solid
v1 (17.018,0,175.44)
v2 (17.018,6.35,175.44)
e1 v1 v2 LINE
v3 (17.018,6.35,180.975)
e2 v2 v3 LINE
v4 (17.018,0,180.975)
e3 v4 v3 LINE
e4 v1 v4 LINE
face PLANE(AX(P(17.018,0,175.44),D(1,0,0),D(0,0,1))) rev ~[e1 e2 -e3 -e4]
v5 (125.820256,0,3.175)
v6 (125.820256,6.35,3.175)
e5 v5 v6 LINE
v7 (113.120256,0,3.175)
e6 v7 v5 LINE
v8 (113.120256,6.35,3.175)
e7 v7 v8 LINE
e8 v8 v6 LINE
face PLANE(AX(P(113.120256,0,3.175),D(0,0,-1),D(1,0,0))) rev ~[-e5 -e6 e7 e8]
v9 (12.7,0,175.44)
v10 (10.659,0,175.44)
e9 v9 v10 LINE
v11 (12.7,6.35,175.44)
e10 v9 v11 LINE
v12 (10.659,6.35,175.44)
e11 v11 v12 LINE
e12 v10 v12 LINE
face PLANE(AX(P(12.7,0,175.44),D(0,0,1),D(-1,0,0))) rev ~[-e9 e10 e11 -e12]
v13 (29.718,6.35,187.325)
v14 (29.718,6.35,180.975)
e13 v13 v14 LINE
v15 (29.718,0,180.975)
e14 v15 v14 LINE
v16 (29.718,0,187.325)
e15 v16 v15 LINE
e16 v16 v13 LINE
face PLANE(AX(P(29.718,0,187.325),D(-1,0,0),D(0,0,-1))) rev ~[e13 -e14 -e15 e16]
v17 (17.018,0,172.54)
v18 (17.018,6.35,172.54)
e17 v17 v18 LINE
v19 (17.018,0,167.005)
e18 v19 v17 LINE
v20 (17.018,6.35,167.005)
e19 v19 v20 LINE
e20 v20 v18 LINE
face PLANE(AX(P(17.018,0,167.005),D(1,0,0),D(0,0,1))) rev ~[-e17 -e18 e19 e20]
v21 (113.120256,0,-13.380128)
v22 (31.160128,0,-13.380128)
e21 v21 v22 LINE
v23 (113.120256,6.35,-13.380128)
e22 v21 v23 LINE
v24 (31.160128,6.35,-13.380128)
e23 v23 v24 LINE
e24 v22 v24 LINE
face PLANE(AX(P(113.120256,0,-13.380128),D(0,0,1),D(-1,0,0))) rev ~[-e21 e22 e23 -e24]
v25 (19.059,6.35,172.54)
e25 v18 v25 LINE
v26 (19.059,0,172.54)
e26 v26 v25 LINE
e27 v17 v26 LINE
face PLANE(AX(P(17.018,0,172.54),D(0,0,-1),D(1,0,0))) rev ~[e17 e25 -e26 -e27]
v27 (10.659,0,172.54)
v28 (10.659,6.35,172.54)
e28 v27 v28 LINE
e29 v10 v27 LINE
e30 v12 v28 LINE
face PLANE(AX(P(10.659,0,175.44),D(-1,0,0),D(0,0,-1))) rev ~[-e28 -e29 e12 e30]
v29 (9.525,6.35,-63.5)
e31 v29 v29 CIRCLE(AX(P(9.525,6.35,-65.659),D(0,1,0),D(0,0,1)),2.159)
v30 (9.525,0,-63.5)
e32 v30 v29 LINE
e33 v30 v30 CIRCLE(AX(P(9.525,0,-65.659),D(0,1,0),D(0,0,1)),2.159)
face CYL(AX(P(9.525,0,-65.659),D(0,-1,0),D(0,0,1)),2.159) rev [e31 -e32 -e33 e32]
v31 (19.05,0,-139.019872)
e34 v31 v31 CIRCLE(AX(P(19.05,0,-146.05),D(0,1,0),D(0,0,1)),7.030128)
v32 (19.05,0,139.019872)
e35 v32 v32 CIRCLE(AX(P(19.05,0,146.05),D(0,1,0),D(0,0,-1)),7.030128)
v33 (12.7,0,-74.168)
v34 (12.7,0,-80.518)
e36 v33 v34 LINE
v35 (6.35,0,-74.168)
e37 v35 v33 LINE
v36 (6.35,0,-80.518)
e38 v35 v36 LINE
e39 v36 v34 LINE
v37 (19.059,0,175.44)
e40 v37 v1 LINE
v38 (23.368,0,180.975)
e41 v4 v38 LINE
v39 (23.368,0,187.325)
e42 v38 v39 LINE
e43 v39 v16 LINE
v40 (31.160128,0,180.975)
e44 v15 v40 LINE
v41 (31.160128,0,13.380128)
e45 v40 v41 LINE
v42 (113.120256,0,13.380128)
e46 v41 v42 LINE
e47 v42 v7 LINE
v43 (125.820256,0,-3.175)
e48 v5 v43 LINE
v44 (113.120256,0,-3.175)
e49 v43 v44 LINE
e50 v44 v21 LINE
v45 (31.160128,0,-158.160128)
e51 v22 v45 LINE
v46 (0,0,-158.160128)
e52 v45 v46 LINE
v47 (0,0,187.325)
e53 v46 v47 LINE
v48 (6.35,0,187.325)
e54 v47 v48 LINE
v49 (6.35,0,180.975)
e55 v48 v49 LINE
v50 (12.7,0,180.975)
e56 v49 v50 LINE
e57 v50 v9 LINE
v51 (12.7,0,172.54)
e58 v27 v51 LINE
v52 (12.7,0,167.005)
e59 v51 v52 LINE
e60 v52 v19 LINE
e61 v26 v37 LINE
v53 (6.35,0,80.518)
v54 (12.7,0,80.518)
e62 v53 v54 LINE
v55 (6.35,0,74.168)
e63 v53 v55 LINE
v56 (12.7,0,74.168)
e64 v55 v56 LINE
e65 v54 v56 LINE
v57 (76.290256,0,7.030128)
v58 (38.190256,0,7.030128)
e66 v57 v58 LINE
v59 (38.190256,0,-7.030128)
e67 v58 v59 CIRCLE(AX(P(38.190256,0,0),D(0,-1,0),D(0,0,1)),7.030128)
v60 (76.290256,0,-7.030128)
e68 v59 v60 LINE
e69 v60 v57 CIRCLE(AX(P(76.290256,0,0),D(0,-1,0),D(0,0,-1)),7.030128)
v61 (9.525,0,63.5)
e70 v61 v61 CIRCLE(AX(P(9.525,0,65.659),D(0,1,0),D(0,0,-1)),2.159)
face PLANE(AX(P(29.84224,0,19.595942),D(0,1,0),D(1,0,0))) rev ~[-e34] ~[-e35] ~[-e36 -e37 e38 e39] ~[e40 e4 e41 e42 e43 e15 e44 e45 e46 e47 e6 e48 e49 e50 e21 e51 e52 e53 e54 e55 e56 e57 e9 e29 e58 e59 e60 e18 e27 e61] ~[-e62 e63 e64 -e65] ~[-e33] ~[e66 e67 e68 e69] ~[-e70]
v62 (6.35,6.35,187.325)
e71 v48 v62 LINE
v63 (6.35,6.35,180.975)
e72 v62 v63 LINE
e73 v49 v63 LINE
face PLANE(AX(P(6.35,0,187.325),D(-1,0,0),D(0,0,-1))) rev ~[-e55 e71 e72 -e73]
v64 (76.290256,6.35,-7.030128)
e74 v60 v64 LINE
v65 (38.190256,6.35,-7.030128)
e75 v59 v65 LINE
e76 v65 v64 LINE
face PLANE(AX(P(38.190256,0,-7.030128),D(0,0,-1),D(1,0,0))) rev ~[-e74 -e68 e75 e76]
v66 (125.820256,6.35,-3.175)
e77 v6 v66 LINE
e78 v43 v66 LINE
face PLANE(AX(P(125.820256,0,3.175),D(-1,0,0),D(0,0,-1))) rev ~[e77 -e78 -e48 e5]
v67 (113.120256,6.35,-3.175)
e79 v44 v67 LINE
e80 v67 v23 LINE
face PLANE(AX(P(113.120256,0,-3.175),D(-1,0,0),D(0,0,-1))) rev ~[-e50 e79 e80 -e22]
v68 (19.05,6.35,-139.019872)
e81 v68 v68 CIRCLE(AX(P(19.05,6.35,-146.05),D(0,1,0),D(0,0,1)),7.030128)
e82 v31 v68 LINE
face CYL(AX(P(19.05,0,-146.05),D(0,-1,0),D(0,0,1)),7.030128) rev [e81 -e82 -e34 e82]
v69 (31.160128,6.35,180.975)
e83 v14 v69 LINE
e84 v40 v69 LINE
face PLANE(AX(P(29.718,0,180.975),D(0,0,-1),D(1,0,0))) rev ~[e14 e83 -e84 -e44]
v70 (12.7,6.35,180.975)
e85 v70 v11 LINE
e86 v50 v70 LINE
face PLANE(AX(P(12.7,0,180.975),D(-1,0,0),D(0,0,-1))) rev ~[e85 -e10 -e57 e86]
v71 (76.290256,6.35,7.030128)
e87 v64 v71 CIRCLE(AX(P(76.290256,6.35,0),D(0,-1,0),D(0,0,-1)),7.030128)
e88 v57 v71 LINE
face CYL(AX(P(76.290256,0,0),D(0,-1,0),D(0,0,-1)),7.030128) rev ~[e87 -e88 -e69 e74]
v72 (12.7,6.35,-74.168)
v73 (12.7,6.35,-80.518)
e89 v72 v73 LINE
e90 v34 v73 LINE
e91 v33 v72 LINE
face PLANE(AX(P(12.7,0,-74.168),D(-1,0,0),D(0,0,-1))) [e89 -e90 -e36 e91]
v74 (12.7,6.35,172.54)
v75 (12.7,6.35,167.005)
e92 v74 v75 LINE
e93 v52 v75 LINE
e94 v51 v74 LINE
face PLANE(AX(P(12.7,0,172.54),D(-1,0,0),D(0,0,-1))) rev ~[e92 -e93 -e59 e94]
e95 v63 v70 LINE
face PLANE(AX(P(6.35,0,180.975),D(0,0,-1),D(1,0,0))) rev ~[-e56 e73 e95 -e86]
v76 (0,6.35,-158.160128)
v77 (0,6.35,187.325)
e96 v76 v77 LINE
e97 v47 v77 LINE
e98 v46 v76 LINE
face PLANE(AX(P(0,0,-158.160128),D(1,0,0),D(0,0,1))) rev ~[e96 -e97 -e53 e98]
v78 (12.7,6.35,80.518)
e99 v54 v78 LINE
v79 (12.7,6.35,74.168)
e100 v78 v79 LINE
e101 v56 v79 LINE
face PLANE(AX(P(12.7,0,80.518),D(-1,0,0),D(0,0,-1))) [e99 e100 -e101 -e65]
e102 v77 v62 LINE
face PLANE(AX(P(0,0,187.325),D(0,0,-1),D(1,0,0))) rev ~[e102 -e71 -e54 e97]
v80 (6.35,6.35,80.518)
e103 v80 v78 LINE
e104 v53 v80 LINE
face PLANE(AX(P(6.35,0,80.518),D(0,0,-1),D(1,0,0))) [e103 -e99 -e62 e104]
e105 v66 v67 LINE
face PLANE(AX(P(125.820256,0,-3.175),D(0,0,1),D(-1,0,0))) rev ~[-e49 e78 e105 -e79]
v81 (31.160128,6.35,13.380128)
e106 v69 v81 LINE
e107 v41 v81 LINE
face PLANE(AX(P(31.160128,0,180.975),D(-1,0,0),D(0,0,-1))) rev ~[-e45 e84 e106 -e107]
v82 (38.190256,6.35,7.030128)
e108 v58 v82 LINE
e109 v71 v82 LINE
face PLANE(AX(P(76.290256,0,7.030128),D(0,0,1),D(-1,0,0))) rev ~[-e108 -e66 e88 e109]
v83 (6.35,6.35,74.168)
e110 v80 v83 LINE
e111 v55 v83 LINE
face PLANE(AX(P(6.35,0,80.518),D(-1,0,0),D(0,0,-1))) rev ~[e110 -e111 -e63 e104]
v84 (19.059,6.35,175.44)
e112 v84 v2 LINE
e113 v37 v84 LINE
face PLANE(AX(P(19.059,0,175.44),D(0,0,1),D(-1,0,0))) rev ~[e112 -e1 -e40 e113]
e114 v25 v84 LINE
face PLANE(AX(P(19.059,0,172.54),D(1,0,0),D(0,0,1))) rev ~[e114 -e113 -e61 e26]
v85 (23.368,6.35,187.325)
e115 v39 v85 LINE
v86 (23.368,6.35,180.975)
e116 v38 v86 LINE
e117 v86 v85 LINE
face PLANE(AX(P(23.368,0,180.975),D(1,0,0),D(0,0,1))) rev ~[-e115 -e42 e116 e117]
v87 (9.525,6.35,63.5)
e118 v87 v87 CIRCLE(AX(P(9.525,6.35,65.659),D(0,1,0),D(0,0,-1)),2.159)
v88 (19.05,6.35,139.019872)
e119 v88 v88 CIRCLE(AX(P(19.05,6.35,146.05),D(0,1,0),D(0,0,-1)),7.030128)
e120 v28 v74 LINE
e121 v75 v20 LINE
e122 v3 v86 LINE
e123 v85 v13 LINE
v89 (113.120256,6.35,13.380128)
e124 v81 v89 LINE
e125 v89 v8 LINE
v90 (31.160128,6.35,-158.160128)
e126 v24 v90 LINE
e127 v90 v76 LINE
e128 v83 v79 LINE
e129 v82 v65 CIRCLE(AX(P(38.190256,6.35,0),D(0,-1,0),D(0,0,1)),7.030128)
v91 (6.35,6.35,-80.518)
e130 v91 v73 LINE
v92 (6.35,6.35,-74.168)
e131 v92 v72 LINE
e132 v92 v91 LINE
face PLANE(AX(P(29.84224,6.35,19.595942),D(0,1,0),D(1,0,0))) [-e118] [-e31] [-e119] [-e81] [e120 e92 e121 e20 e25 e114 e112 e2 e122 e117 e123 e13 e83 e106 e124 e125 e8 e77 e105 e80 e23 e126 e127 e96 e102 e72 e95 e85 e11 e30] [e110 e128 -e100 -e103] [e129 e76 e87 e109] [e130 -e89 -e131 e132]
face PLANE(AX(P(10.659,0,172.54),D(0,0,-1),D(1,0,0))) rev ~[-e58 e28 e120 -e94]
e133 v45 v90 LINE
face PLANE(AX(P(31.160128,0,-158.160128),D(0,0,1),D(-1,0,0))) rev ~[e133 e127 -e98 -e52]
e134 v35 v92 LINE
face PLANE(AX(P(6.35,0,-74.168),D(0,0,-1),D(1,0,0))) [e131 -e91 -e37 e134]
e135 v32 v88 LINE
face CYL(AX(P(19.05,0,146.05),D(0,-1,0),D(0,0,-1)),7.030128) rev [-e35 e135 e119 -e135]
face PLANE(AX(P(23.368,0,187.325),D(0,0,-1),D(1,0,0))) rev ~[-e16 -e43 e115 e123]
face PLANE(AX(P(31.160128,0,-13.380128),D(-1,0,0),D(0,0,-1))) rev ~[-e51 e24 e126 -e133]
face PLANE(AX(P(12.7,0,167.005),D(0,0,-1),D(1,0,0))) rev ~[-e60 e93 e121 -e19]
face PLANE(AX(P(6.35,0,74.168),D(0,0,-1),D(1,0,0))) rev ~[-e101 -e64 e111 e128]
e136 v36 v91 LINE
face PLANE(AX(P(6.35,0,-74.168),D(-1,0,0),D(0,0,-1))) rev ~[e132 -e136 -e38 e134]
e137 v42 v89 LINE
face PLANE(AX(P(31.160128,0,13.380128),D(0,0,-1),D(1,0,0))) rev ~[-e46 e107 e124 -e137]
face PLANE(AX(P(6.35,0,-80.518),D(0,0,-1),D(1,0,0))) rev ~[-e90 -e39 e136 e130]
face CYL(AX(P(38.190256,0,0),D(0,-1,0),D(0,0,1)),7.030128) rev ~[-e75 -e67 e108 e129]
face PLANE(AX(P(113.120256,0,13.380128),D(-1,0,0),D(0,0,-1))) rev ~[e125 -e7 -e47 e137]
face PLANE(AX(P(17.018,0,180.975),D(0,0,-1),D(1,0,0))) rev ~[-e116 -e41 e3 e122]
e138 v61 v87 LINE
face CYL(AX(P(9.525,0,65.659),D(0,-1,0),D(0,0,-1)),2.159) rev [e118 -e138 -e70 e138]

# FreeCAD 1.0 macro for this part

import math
import FreeCAD as App
import Part
import Sketcher

V = App.Vector
Q = App.Units.Quantity


def add_polygon(sketch, points):
    """Adds a closed chain of lines whose ends are joined by coincident constraints."""
    first, n = sketch.GeometryCount, len(points)
    for a, b in zip(points, points[1:] + points[:1]):
        sketch.addGeometry(Part.LineSegment(App.Vector(*a, 0), App.Vector(*b, 0)), False)
    for i in range(n):
        sketch.addConstraint(Sketcher.Constraint("Coincident", first + i, 2, first + (i + 1) % n, 1))

doc = App.newDocument("Part")
body = doc.addObject("PartDesign::Body", "Body")

# Sketch on XZ plane
sketch1 = body.newObject("Sketcher::SketchObject", "Sketch")
sketch1.AttachmentSupport = (doc.getObject("XZ_Plane"), [""])
sketch1.MapMode = "FlatFace"
add_polygon(sketch1, [(31.2, 181), (31.2, 13.4), (113.1, 13.4), (113.1, 3.2), (125.8, 3.2), (125.8, -3.2), (113.1, -3.2), (113.1, -13.4), (31.2, -13.4), (31.2, -158.2), (0, -158.2), (0, 187.3), (6.3, 187.3), (6.3, 181), (12.7, 181), (12.7, 175.4), (10.7, 175.4), (10.7, 172.5), (12.7, 172.5), (12.7, 167), (17, 167), (17, 172.5), (19.1, 172.5), (19.1, 175.4), (17, 175.4), (17, 181), (23.4, 181), (23.4, 187.3), (29.7, 187.3), (29.7, 181)])  # lines 0-29
sketch1.addGeometry(Part.Circle(V(19.1, 146.1, 0), V(0, 0, 1), 7), False)  # 30
add_polygon(sketch1, [(12.7, 80.5), (6.3, 80.5), (6.3, 74.2), (12.7, 74.2)])  # lines 31-34
sketch1.addGeometry(Part.Circle(V(9.5, 65.7, 0), V(0, 0, 1), 2.2), False)  # 35
sketch1.addGeometry(Part.Circle(V(9.5, -65.7, 0), V(0, 0, 1), 2.2), False)  # 36
add_polygon(sketch1, [(12.7, -74.2), (6.3, -74.2), (6.3, -80.5), (12.7, -80.5)])  # lines 37-40
sketch1.addGeometry(Part.Circle(V(19.1, -146.1, 0), V(0, 0, 1), 7), False)  # 41
sketch1.addGeometry(Part.ArcOfCircle(Part.Circle(V(38.2, 0, 0), V(0, 0, 1), 7), math.radians(90), math.radians(270)), False)  # 42
sketch1.addGeometry(Part.LineSegment(V(38.2, -7, 0), V(76.3, -7, 0)), False)  # 43
sketch1.addGeometry(Part.ArcOfCircle(Part.Circle(V(76.3, 0, 0), V(0, 0, 1), 7), math.radians(-90), math.radians(90)), False)  # 44
sketch1.addGeometry(Part.LineSegment(V(76.3, 7, 0), V(38.2, 7, 0)), False)  # 45
sketch1.addConstraint([
    Sketcher.Constraint("Tangent", 42, 2, 43, 1),
    Sketcher.Constraint("Tangent", 43, 2, 44, 1),
    Sketcher.Constraint("Tangent", 44, 2, 45, 1),
    Sketcher.Constraint("Tangent", 45, 2, 42, 1),
    Sketcher.Constraint("Vertical", 0),
    Sketcher.Constraint("Horizontal", 1),
    Sketcher.Constraint("Vertical", 2),
    Sketcher.Constraint("Horizontal", 3),
    Sketcher.Constraint("Vertical", 4),
    Sketcher.Constraint("Horizontal", 5),
    Sketcher.Constraint("Vertical", 6),
    Sketcher.Constraint("Horizontal", 7),
    Sketcher.Constraint("Vertical", 8),
    Sketcher.Constraint("Horizontal", 9),
    Sketcher.Constraint("Vertical", 10),
    Sketcher.Constraint("Horizontal", 11),
    Sketcher.Constraint("Vertical", 12),
    Sketcher.Constraint("Horizontal", 13),
    Sketcher.Constraint("Vertical", 14),
    Sketcher.Constraint("Horizontal", 15),
    Sketcher.Constraint("Vertical", 16),
    Sketcher.Constraint("Horizontal", 17),
    Sketcher.Constraint("Vertical", 18),
    Sketcher.Constraint("Horizontal", 19),
    Sketcher.Constraint("Vertical", 20),
    Sketcher.Constraint("Horizontal", 21),
    Sketcher.Constraint("Vertical", 22),
    Sketcher.Constraint("Horizontal", 23),
    Sketcher.Constraint("Vertical", 24),
    Sketcher.Constraint("Horizontal", 25),
    Sketcher.Constraint("Vertical", 26),
    Sketcher.Constraint("Horizontal", 27),
    Sketcher.Constraint("Vertical", 28),
    Sketcher.Constraint("Horizontal", 29),
    Sketcher.Constraint("Horizontal", 31),
    Sketcher.Constraint("Vertical", 32),
    Sketcher.Constraint("Horizontal", 33),
    Sketcher.Constraint("Vertical", 34),
    Sketcher.Constraint("Horizontal", 37),
    Sketcher.Constraint("Vertical", 38),
    Sketcher.Constraint("Horizontal", 39),
    Sketcher.Constraint("Vertical", 40),
    Sketcher.Constraint("Horizontal", 43),
    Sketcher.Constraint("Horizontal", 45),
    Sketcher.Constraint("Equal", 35, 36),
    Sketcher.Constraint("Equal", 30, 41),
    Sketcher.Constraint("Equal", 41, 42),
    Sketcher.Constraint("Symmetric", 35, 3, 36, 3, -1),
    Sketcher.Constraint("Symmetric", 30, 3, 41, 3, -1),
    Sketcher.Constraint("Symmetric", 2, 2, 5, 2, -1),
    Sketcher.Constraint("Symmetric", 0, 2, 7, 2, -1),
    Sketcher.Constraint("Symmetric", 32, 2, 37, 2, -1),
    Sketcher.Constraint("Symmetric", 34, 2, 39, 2, -1),
    Sketcher.Constraint("PointOnObject", 42, 3, -1),
    Sketcher.Constraint("PointOnObject", 9, 2, -2),
    Sketcher.Constraint("Horizontal", 17, 2, 20, 2),
    Sketcher.Constraint("Horizontal", 15, 2, 22, 2),
    Sketcher.Constraint("Horizontal", 13, 2, 24, 2),
    Sketcher.Constraint("Horizontal", 11, 2, 26, 2),
    Sketcher.Constraint("Horizontal", 25, 2, 28, 2),
    Sketcher.Constraint("Vertical", 14, 2, 17, 2),
    Sketcher.Constraint("Vertical", 20, 2, 23, 2),
    Sketcher.Constraint("Vertical", 12, 2, 31, 2),
    Sketcher.Constraint("Vertical", 18, 2, 33, 2),
    Sketcher.Constraint("Equal", 11, 13),
    Sketcher.Constraint("Equal", 17, 21),
    Sketcher.Constraint("Equal", 13, 25),
    Sketcher.Constraint("Equal", 25, 27),
    Sketcher.Constraint("Equal", 39, 4),
    Sketcher.Constraint("Equal", 4, 12),
    Sketcher.Constraint("Equal", 14, 18),
    Sketcher.Constraint("Equal", 28, 32),
    Sketcher.Constraint("Diameter", 35, Q("0.17 in")),
    Sketcher.Constraint("DistanceX", 3, 1, 3, 2, Q("0.5 in")),
    Sketcher.Constraint("DistanceX", 43, 1, 43, 2, Q("1.5 in")),
    Sketcher.Constraint("DistanceY", 8, 2, 8, 1, Q("5.7 in")),
    Sketcher.Constraint("DistanceX", 11, 1, 11, 2, Q("0.25 in")),
    Sketcher.Constraint("DistanceX", 19, 1, 19, 2, Q("0.17 in")),
    Sketcher.Constraint("DistanceY", 41, 3, 30, 3, Q("11.5 in")),
    Sketcher.Constraint("DistanceX", 11, 2, 30, 3, Q("0.5 in")),
    Sketcher.Constraint("DistanceY", -1, 1, 31, 2, Q("3.17 in")),
    Sketcher.Constraint("DistanceY", 36, 3, 35, 3, Q("5.17 in")),
    Sketcher.Constraint("DistanceX", 44, 3, 1, 2, Q("1.45 in")),
    Sketcher.Constraint("DistanceY", 35, 3, 10, 2, Q("4.79 in")),
    Sketcher.Constraint("DistanceY", 18, 2, 13, 2, Q("0.55 in")),
    Sketcher.Constraint("DistanceY", 7, 2, 42, 2, Q("0.25 in")),
    Sketcher.Constraint("DistanceX", -1, 1, 35, 3, Q("0.375 in")),
    Sketcher.Constraint("Radius", 42, Q("7.030128 mm")),
    Sketcher.Constraint("DistanceX", 15, 2, 15, 1, Q("2.041 mm")),
    Sketcher.Constraint("DistanceY", 14, 2, 14, 1, Q("5.535 mm")),
    Sketcher.Constraint("DistanceX", 1, 1, 1, 2, Q("81.960128 mm")),
    Sketcher.Constraint("DistanceX", 9, 2, 9, 1, Q("31.160128 mm")),
])
pad1 = body.newObject("PartDesign::Pad", "Pad")
pad1.Profile = sketch1
pad1.Length = Q("0.25 in")
pad1.Reversed = True

doc.recompute()
